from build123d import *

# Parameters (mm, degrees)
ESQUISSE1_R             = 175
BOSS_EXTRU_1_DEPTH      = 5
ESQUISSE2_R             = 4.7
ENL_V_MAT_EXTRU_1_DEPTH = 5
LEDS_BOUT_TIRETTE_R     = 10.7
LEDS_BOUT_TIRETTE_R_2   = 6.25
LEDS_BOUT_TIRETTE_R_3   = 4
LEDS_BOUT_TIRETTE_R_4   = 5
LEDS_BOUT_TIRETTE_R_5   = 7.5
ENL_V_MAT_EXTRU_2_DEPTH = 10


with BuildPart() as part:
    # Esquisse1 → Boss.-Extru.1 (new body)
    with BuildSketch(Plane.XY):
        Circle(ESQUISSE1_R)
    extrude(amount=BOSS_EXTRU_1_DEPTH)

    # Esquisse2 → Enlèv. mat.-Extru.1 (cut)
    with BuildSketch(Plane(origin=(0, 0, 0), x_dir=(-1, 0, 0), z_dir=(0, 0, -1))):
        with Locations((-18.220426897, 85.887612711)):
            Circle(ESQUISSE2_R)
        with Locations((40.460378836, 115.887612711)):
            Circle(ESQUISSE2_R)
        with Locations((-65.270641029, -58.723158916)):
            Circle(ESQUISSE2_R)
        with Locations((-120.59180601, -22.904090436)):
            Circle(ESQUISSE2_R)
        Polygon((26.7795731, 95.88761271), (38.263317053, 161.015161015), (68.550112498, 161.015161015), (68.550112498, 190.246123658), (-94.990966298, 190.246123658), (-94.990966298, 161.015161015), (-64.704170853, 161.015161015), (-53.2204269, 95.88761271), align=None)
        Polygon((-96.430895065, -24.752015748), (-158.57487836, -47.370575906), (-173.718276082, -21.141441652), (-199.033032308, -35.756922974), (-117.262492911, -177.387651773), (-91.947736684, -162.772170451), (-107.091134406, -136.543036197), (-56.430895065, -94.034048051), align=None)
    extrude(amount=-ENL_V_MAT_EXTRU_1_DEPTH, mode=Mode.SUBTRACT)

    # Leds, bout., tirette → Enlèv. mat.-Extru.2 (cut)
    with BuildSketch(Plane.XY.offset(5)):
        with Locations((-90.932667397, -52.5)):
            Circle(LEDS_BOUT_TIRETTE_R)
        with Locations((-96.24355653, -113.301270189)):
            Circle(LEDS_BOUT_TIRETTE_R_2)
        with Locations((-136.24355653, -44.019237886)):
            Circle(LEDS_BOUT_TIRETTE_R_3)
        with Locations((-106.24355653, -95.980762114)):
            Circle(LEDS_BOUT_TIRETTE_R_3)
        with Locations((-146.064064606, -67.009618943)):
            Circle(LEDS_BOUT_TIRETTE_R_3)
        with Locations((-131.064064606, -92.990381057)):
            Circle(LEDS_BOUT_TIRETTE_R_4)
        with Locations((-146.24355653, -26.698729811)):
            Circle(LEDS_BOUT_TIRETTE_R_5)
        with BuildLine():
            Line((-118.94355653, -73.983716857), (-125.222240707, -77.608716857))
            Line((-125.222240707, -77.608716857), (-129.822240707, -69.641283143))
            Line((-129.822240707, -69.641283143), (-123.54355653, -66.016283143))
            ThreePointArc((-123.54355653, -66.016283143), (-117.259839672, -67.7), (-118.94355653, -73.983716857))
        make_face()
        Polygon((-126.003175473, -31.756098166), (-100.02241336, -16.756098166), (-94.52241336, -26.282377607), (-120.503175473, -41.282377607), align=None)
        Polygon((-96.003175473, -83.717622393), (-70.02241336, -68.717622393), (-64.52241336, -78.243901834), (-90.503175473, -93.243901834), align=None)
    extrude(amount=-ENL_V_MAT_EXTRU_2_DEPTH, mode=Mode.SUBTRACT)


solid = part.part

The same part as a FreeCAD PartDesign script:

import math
import FreeCAD as App
import Part
import Sketcher
Q = App.Units.Quantity

doc = App.newDocument("Part")
params = doc.addObject("Spreadsheet::Sheet", "Params")
for row, (alias, value) in enumerate([
    ("sketch1_diameter", "350 mm"),
    ("pad1_length", "5 mm"),
    ("sketch2_diameter", "9.4 mm"),
    ("sketch2_width", "80 mm"),
    ("sketch2_length", "80 mm"),
    ("pocket1_length", "5 mm"),
    ("sketch3_diameter", "8 mm"),
    ("sketch3_diameter2", "10 mm"),
    ("sketch3_diameter3", "15 mm"),
    ("sketch3_diameter4", "21.4 mm"),
    ("sketch3_diameter5", "12.5 mm"),
    ("pocket2_length", "10 mm"),
], start=1):
    params.set(f"A{row}", alias)
    params.set(f"B{row}", "=" + value)
    params.setAlias(f"B{row}", alias)

body = doc.addObject("PartDesign::Body", "Body")

# Sketch on XY plane
sketch1 = body.newObject("Sketcher::SketchObject", "Sketch")
sketch1.AttachmentSupport = (doc.getObject("XY_Plane"), [""])
sketch1.MapMode = "FlatFace"
sketch1.addGeometry(Part.Circle(App.Vector(0, 0, 0), App.Vector(0, 0, 1), 175), False)
sketch1.addConstraint([
    Sketcher.Constraint("Coincident", 0, 3, -1, 1),
    Sketcher.Constraint("Diameter", 0, 350.0),
])
sketch1.setExpression("Constraints[1]", "Params.sketch1_diameter")
pad1 = body.newObject("PartDesign::Pad", "Pad")
pad1.Profile = sketch1
pad1.setExpression("Length", "Params.pad1_length")

# Sketch on XY plane
sketch2 = body.newObject("Sketcher::SketchObject", "Sketch001")
sketch2.AttachmentSupport = (doc.getObject("XY_Plane"), [""])
sketch2.MapMode = "FlatFace"
sketch2.addGeometry([
    Part.Circle(App.Vector(18.220427, 85.887613, 0), App.Vector(0, 0, 1), 4.7),  # 0
    Part.Circle(App.Vector(-40.460379, 115.887613, 0), App.Vector(0, 0, 1), 4.7),  # 1
    Part.Circle(App.Vector(65.270641, -58.723159, 0), App.Vector(0, 0, 1), 4.7),  # 2
    Part.Circle(App.Vector(120.591806, -22.90409, 0), App.Vector(0, 0, 1), 4.7),  # 3
    Part.LineSegment(App.Vector(-26.779573, 95.887613, 0), App.Vector(-38.263317, 161.015161, 0)),  # 4
    Part.LineSegment(App.Vector(-38.263317, 161.015161, 0), App.Vector(-68.550112, 161.015161, 0)),  # 5
    Part.LineSegment(App.Vector(-68.550112, 161.015161, 0), App.Vector(-68.550112, 190.246124, 0)),  # 6
    Part.LineSegment(App.Vector(-68.550112, 190.246124, 0), App.Vector(94.990966, 190.246124, 0)),  # 7
    Part.LineSegment(App.Vector(94.990966, 190.246124, 0), App.Vector(94.990966, 161.015161, 0)),  # 8
    Part.LineSegment(App.Vector(94.990966, 161.015161, 0), App.Vector(64.704171, 161.015161, 0)),  # 9
    Part.LineSegment(App.Vector(64.704171, 161.015161, 0), App.Vector(53.220427, 95.887613, 0)),  # 10
    Part.LineSegment(App.Vector(53.220427, 95.887613, 0), App.Vector(-26.779573, 95.887613, 0)),  # 11
    Part.LineSegment(App.Vector(96.430895, -24.752016, 0), App.Vector(158.574878, -47.370576, 0)),  # 12
    Part.LineSegment(App.Vector(158.574878, -47.370576, 0), App.Vector(173.718276, -21.141442, 0)),  # 13
    Part.LineSegment(App.Vector(173.718276, -21.141442, 0), App.Vector(199.033032, -35.756923, 0)),  # 14
    Part.LineSegment(App.Vector(199.033032, -35.756923, 0), App.Vector(117.262493, -177.387652, 0)),  # 15
    Part.LineSegment(App.Vector(117.262493, -177.387652, 0), App.Vector(91.947737, -162.77217, 0)),  # 16
    Part.LineSegment(App.Vector(91.947737, -162.77217, 0), App.Vector(107.091134, -136.543036, 0)),  # 17
    Part.LineSegment(App.Vector(107.091134, -136.543036, 0), App.Vector(56.430895, -94.034048, 0)),  # 18
    Part.LineSegment(App.Vector(56.430895, -94.034048, 0), App.Vector(96.430895, -24.752016, 0)),  # 19
], False)
sketch2.addConstraint([
    Sketcher.Constraint("Coincident", 4, 2, 5, 1),
    Sketcher.Constraint("Coincident", 5, 2, 6, 1),
    Sketcher.Constraint("Coincident", 6, 2, 7, 1),
    Sketcher.Constraint("Coincident", 7, 2, 8, 1),
    Sketcher.Constraint("Coincident", 8, 2, 9, 1),
    Sketcher.Constraint("Coincident", 9, 2, 10, 1),
    Sketcher.Constraint("Coincident", 10, 2, 11, 1),
    Sketcher.Constraint("Coincident", 11, 2, 4, 1),
    Sketcher.Constraint("Coincident", 12, 2, 13, 1),
    Sketcher.Constraint("Coincident", 13, 2, 14, 1),
    Sketcher.Constraint("Coincident", 14, 2, 15, 1),
    Sketcher.Constraint("Coincident", 15, 2, 16, 1),
    Sketcher.Constraint("Coincident", 16, 2, 17, 1),
    Sketcher.Constraint("Coincident", 17, 2, 18, 1),
    Sketcher.Constraint("Coincident", 18, 2, 19, 1),
    Sketcher.Constraint("Coincident", 19, 2, 12, 1),
    Sketcher.Constraint("Horizontal", 5),
    Sketcher.Constraint("Vertical", 6),
    Sketcher.Constraint("Horizontal", 7),
    Sketcher.Constraint("Vertical", 8),
    Sketcher.Constraint("Horizontal", 9),
    Sketcher.Constraint("Horizontal", 11),
    Sketcher.Constraint("Equal", 0, 1),
    Sketcher.Constraint("Equal", 1, 2),
    Sketcher.Constraint("Equal", 2, 3),
    Sketcher.Constraint("Perpendicular", 13, 14),
    Sketcher.Constraint("Perpendicular", 14, 15),
    Sketcher.Constraint("Perpendicular", 15, 16),
    Sketcher.Constraint("Perpendicular", 16, 17),
    Sketcher.Constraint("Parallel", 17, 19),
    Sketcher.Constraint("Horizontal", 5, 2, 8, 2),
    Sketcher.Constraint("Equal", 5, 9),
    Sketcher.Constraint("Equal", 4, 10),
    Sketcher.Constraint("Equal", 10, 12),
    Sketcher.Constraint("Equal", 14, 16),
    Sketcher.Constraint("Equal", 13, 17),
    Sketcher.Constraint("Equal", 12, 18),
    Sketcher.Constraint("Diameter", 0, 9.4),
    Sketcher.Constraint("DistanceX", 11, 2, 11, 1, 80.0),
    Sketcher.Constraint("Angle", 4, Q("100 deg")),
    Sketcher.Constraint("Angle", 12, Q("-20 deg")),
    Sketcher.Constraint("Angle", 13, Q("60 deg")),
    Sketcher.Constraint("Distance", 19, 80.0),
    Sketcher.Constraint("DistanceY", 0, 3, 1, 3, 30.0),
    Sketcher.Constraint("DistanceX", 0, 3, 10, 2, 35.0),
    Sketcher.Constraint("DistanceY", 0, 3, 10, 2, 10.0),
    Sketcher.Constraint("DistanceX", 7, 1, 7, 2, 163.541079),
    Sketcher.Constraint("Distance", 15, 163.541079),
    Sketcher.Constraint("DistanceX", 5, 2, 5, 1, 30.286795),
    Sketcher.Constraint("DistanceY", 6, 1, 6, 2, 29.230963),
    Sketcher.Constraint("DistanceX", 1, 3, -1, 1, 40.460379),
    Sketcher.Constraint("DistanceX", -1, 1, 2, 3, 65.270641),
    Sketcher.Constraint("DistanceY", 2, 3, -1, 1, 58.723159),
    Sketcher.Constraint("DistanceY", 3, 3, -1, 1, 22.90409),
    Sketcher.Constraint("DistanceY", -1, 1, 4, 2, 161.015161),
    Sketcher.Constraint("DistanceX", -1, 1, 9, 2, 64.704171),
    Sketcher.Constraint("DistanceX", -1, 1, 12, 2, 158.574878),
    Sketcher.Constraint("DistanceY", 13, 2, -1, 1, 21.141442),
    Sketcher.Constraint("DistanceY", 15, 2, -1, 1, 177.387652),
    Sketcher.Constraint("DistanceX", 0, 3, 3, 3, 102.371379),
])
sketch2.setExpression("Constraints[37]", "Params.sketch2_diameter")
sketch2.setExpression("Constraints[38]", "Params.sketch2_width")
sketch2.setExpression("Constraints[42]", "Params.sketch2_length")
pocket1 = body.newObject("PartDesign::Pocket", "Pocket")
pocket1.Profile = sketch2
pocket1.setExpression("Length", "Params.pocket1_length")
pocket1.Reversed = True

# Sketch on XY plane
sketch3 = body.newObject("Sketcher::SketchObject", "Sketch002")
sketch3.AttachmentSupport = (doc.getObject("XY_Plane"), [""])
sketch3.MapMode = "FlatFace"
sketch3.AttachmentOffset = App.Placement(App.Vector(0, 0, 5), App.Rotation())
sketch3.addGeometry([
    Part.Circle(App.Vector(-90.932667, -52.5, 0), App.Vector(0, 0, 1), 10.7),  # 0
    Part.Circle(App.Vector(-96.243557, -113.30127, 0), App.Vector(0, 0, 1), 6.25),  # 1
    Part.Circle(App.Vector(-136.243557, -44.019238, 0), App.Vector(0, 0, 1), 4),  # 2
    Part.Circle(App.Vector(-106.243557, -95.980762, 0), App.Vector(0, 0, 1), 4),  # 3
    Part.Circle(App.Vector(-146.064065, -67.009619, 0), App.Vector(0, 0, 1), 4),  # 4
    Part.Circle(App.Vector(-131.064065, -92.990381, 0), App.Vector(0, 0, 1), 5),  # 5
    Part.Circle(App.Vector(-146.243557, -26.69873, 0), App.Vector(0, 0, 1), 7.5),  # 6
    Part.LineSegment(App.Vector(-125.222241, -77.608717, 0), App.Vector(-118.943557, -73.983717, 0)),  # 7
    Part.ArcOfCircle(Part.Circle(App.Vector(-121.243557, -70, 0), App.Vector(0, 0, 1), 4.6), math.radians(-60), math.radians(120)),  # 8
    Part.LineSegment(App.Vector(-123.543557, -66.016283, 0), App.Vector(-129.822241, -69.641283, 0)),  # 9
    Part.LineSegment(App.Vector(-129.822241, -69.641283, 0), App.Vector(-125.222241, -77.608717, 0)),  # 10
    Part.LineSegment(App.Vector(-100.022413, -16.756098, 0), App.Vector(-126.003175, -31.756098, 0)),  # 11
    Part.LineSegment(App.Vector(-126.003175, -31.756098, 0), App.Vector(-120.503175, -41.282378, 0)),  # 12
    Part.LineSegment(App.Vector(-120.503175, -41.282378, 0), App.Vector(-94.522413, -26.282378, 0)),  # 13
    Part.LineSegment(App.Vector(-94.522413, -26.282378, 0), App.Vector(-100.022413, -16.756098, 0)),  # 14
    Part.LineSegment(App.Vector(-70.022413, -68.717622, 0), App.Vector(-96.003175, -83.717622, 0)),  # 15
    Part.LineSegment(App.Vector(-96.003175, -83.717622, 0), App.Vector(-90.503175, -93.243902, 0)),  # 16
    Part.LineSegment(App.Vector(-90.503175, -93.243902, 0), App.Vector(-64.522413, -78.243902, 0)),  # 17
    Part.LineSegment(App.Vector(-64.522413, -78.243902, 0), App.Vector(-70.022413, -68.717622, 0)),  # 18
], False)
sketch3.addConstraint([
    Sketcher.Constraint("Tangent", 7, 2, 8, 1),
    Sketcher.Constraint("Tangent", 8, 2, 9, 1),
    Sketcher.Constraint("Coincident", 9, 2, 10, 1),
    Sketcher.Constraint("Coincident", 10, 2, 7, 1),
    Sketcher.Constraint("Coincident", 11, 2, 12, 1),
    Sketcher.Constraint("Coincident", 12, 2, 13, 1),
    Sketcher.Constraint("Coincident", 13, 2, 14, 1),
    Sketcher.Constraint("Coincident", 14, 2, 11, 1),
    Sketcher.Constraint("Coincident", 15, 2, 16, 1),
    Sketcher.Constraint("Coincident", 16, 2, 17, 1),
    Sketcher.Constraint("Coincident", 17, 2, 18, 1),
    Sketcher.Constraint("Coincident", 18, 2, 15, 1),
    Sketcher.Constraint("Equal", 2, 3),
    Sketcher.Constraint("Equal", 3, 4),
    Sketcher.Constraint("Parallel", 7, 9),
    Sketcher.Constraint("Perpendicular", 9, 10),
    Sketcher.Constraint("Perpendicular", 10, 11),
    Sketcher.Constraint("Perpendicular", 11, 12),
    Sketcher.Constraint("Perpendicular", 12, 13),
    Sketcher.Constraint("Perpendicular", 13, 14),
    Sketcher.Constraint("Perpendicular", 14, 15),
    Sketcher.Constraint("Perpendicular", 15, 16),
    Sketcher.Constraint("Perpendicular", 16, 17),
    Sketcher.Constraint("Perpendicular", 17, 18),
    Sketcher.Constraint("Equal", 13, 15),
    Sketcher.Constraint("Equal", 14, 16),
    Sketcher.Constraint("Diameter", 2, 8.0),
    Sketcher.Constraint("Diameter", 5, 10.0),
    Sketcher.Constraint("Diameter", 6, 15.0),
    Sketcher.Constraint("Diameter", 0, 21.4),
    Sketcher.Constraint("Diameter", 1, 12.5),
    Sketcher.Constraint("Radius", 8, 4.6),
    Sketcher.Constraint("Angle", 7, Q("30 deg")),
    Sketcher.Constraint("Distance", 11, 30.0),
    Sketcher.Constraint("Distance", 12, 11.0),
    Sketcher.Constraint("DistanceY", 8, 3, -1, 1, 70.0),
    Sketcher.Constraint("DistanceX", 2, 3, 1, 3, 40.0),
    Sketcher.Constraint("DistanceX", 3, 3, 1, 3, 10.0),
    Sketcher.Constraint("DistanceX", 4, 3, 5, 3, 15.0),
    Sketcher.Constraint("DistanceX", 6, 3, 2, 3, 10.0),
    Sketcher.Constraint("DistanceX", 8, 3, 3, 3, 15.0),
    Sketcher.Constraint("DistanceY", 0, 3, -1, 1, 52.5),
    Sketcher.Constraint("Distance", 7, 7.25),
    Sketcher.Constraint("DistanceY", 11, 2, -1, 1, 31.756098),
    Sketcher.Constraint("DistanceY", 16, 2, -1, 1, 93.243902),
    Sketcher.Constraint("DistanceY", 1, 3, -1, 1, 113.30127),
    Sketcher.Constraint("DistanceY", 4, 3, -1, 1, 67.009619),
    Sketcher.Constraint("DistanceY", 5, 3, -1, 1, 92.990381),
    Sketcher.Constraint("DistanceY", 6, 3, -1, 1, 26.69873),
    Sketcher.Constraint("DistanceX", 9, 2, -1, 1, 129.822241),
    Sketcher.Constraint("DistanceX", 1, 3, 0, 3, 5.310889),
    Sketcher.Constraint("DistanceY", 1, 3, 3, 3, 17.320508),
    Sketcher.Constraint("DistanceX", 4, 3, 2, 3, 9.820508),
    Sketcher.Constraint("DistanceY", 4, 3, 2, 3, 22.990381),
    Sketcher.Constraint("DistanceX", 2, 3, 11, 2, 10.240381),
    Sketcher.Constraint("DistanceX", 3, 3, 15, 2, 10.240381),
])
sketch3.setExpression("Constraints[26]", "Params.sketch3_diameter")
sketch3.setExpression("Constraints[27]", "Params.sketch3_diameter2")
sketch3.setExpression("Constraints[28]", "Params.sketch3_diameter3")
sketch3.setExpression("Constraints[29]", "Params.sketch3_diameter4")
sketch3.setExpression("Constraints[30]", "Params.sketch3_diameter5")
pocket2 = body.newObject("PartDesign::Pocket", "Pocket001")
pocket2.Profile = sketch3
pocket2.setExpression("Length", "Params.pocket2_length")

doc.recompute()
